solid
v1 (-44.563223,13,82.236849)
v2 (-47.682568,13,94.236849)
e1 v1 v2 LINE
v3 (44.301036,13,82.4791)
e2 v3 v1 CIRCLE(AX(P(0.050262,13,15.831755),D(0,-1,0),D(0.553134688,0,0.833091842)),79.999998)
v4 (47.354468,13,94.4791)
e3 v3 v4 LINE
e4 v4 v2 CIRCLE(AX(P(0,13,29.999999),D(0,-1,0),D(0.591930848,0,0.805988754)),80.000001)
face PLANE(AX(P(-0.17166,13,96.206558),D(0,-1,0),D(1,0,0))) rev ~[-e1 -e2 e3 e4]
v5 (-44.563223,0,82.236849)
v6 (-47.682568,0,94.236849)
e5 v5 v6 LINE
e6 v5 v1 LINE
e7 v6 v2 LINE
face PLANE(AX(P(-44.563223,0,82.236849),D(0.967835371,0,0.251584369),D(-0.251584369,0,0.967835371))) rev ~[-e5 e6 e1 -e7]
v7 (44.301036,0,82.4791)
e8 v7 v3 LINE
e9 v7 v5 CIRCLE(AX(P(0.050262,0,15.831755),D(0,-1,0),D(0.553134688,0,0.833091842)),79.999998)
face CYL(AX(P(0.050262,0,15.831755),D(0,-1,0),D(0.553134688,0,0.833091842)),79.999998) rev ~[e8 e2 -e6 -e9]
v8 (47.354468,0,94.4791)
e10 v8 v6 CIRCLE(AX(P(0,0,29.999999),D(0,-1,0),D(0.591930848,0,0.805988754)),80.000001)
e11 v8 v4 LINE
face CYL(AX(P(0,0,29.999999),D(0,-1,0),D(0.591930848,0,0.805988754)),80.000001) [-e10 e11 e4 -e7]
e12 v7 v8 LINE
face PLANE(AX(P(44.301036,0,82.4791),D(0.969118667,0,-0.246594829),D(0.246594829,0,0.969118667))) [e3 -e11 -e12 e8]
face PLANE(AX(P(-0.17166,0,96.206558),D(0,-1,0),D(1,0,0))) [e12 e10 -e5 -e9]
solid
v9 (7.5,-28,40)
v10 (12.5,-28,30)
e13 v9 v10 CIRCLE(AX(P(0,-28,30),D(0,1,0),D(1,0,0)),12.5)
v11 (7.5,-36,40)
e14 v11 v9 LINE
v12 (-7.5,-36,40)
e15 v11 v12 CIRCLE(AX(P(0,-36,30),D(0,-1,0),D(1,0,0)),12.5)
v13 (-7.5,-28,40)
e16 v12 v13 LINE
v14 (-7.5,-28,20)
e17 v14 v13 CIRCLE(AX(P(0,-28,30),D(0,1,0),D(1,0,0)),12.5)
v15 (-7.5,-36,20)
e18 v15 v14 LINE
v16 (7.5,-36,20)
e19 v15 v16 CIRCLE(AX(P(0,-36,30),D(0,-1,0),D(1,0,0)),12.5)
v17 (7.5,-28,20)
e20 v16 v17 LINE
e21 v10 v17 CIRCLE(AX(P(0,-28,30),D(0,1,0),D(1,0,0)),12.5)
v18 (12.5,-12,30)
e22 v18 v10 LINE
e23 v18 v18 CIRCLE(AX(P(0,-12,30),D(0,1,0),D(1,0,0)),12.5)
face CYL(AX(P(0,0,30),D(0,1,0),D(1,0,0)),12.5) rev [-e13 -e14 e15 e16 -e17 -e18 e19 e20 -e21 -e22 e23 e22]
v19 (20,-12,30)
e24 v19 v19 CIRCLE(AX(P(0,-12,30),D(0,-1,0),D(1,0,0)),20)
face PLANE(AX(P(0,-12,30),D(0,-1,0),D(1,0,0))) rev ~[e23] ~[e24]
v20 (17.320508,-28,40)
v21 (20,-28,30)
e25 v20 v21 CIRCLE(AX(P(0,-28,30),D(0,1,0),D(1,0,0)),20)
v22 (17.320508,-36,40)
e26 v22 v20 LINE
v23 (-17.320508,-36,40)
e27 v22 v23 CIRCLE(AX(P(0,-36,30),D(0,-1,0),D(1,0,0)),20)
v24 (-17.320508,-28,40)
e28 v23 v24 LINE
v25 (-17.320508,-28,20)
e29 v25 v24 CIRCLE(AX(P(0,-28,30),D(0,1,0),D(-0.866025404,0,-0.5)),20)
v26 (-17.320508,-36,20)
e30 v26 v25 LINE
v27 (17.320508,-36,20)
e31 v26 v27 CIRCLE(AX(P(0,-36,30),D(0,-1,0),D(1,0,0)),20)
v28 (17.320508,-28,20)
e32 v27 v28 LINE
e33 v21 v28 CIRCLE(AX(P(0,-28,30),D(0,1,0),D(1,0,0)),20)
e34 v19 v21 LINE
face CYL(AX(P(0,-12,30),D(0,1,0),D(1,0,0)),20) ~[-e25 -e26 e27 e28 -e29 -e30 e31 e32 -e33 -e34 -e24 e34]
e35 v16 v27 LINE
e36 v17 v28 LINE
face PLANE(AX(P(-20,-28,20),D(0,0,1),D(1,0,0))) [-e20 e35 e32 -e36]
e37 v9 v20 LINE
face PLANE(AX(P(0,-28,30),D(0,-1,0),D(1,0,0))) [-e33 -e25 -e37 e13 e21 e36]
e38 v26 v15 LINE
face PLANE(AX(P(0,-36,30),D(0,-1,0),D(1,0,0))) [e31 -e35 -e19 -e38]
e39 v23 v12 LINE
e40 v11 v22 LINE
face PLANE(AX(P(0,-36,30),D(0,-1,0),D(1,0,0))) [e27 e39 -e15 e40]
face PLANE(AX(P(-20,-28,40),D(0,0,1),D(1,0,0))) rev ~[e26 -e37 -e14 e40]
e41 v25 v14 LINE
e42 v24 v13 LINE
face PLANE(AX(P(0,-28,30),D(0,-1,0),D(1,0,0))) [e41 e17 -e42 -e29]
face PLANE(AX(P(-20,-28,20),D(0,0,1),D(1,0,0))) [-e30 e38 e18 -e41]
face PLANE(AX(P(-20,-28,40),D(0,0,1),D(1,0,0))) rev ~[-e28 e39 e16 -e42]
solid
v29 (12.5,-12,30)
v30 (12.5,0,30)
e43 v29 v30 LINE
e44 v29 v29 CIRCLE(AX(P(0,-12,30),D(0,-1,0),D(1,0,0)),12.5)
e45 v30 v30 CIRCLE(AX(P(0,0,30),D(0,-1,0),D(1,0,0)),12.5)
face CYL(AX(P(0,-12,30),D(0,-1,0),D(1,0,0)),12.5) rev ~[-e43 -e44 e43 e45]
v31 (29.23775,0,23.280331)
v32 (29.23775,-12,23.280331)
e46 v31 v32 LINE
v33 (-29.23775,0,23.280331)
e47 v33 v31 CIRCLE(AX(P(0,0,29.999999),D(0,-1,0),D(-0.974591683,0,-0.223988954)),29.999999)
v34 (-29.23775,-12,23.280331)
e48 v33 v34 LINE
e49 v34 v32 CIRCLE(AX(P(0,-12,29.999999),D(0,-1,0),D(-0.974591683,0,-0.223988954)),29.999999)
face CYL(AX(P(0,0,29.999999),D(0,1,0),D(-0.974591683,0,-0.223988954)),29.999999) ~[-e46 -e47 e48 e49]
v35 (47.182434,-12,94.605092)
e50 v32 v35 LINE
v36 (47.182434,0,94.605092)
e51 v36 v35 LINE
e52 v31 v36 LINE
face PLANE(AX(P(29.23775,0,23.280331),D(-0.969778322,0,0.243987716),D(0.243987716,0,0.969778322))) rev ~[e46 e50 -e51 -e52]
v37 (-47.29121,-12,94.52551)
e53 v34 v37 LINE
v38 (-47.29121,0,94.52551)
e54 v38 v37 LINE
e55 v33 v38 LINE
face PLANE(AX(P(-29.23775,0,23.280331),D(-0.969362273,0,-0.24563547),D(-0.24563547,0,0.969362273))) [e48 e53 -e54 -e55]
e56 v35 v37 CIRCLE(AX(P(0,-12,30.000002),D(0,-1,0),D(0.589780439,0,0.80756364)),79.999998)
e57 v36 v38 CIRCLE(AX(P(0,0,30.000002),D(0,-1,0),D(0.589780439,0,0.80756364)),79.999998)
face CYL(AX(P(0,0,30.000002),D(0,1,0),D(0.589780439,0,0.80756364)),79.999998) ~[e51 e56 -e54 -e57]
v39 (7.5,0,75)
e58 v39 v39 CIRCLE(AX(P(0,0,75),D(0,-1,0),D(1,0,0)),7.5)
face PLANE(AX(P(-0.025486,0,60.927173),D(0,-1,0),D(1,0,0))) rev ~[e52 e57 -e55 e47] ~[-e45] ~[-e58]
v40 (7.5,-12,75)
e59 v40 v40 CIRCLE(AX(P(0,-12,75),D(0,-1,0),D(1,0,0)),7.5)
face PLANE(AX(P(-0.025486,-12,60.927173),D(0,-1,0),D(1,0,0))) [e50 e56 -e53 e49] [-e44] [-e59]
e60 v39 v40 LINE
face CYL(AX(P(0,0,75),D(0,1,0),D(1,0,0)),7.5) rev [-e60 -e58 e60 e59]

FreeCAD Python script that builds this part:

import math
import FreeCAD as App
import Part
import Sketcher

V = App.Vector


def add_polygon(sketch, points):
    """Adds a closed chain of lines whose ends are joined by coincident constraints."""
    first, n = sketch.GeometryCount, len(points)
    for a, b in zip(points, points[1:] + points[:1]):
        sketch.addGeometry(Part.LineSegment(App.Vector(*a, 0), App.Vector(*b, 0)), False)
    for i in range(n):
        sketch.addConstraint(Sketcher.Constraint("Coincident", first + i, 2, first + (i + 1) % n, 1))

doc = App.newDocument("Part")
body = doc.addObject("PartDesign::Body", "Body")

sketch1 = body.newObject("Sketcher::SketchObject", "Sketch")
sketch1.AttachmentSupport = (doc.getObject("XZ_Plane"), [""])
sketch1.MapMode = "FlatFace"
sketch1.addGeometry([
    Part.ArcOfCircle(Part.Circle(V(0, 30, 0), V(0, 0, 1), 30), math.radians(-167), math.radians(-13)),
    Part.LineSegment(V(29, 23, 0), V(47, 95, 0)),
    Part.ArcOfCircle(Part.Circle(V(0, 30, 0), V(0, 0, 1), 80), math.radians(54), math.radians(126)),
    Part.LineSegment(V(-47, 95, 0), V(-29, 23, 0)),
    Part.Circle(V(0, 75, 0), V(0, 0, 1), 8),
], False)
sketch1.addConstraint([
    Sketcher.Constraint("Coincident", 0, 2, 1, 1),
    Sketcher.Constraint("Coincident", 1, 2, 2, 1),
    Sketcher.Constraint("Coincident", 2, 2, 3, 1),
    Sketcher.Constraint("Coincident", 3, 2, 0, 1),
    Sketcher.Constraint("Coincident", 2, 3, 0, 3),
    Sketcher.Constraint("Symmetric", 0, 2, 3, 2, -2),
    Sketcher.Constraint("PointOnObject", 4, 3, -2),
    Sketcher.Constraint("Diameter", 4, 15.0),
    Sketcher.Constraint("Radius", 0, 29.999999),
    Sketcher.Constraint("DistanceY", -1, 1, 0, 3, 29.999999),
    Sketcher.Constraint("DistanceY", -1, 1, 4, 3, 75.0),
    Sketcher.Constraint("Radius", 2, 79.999998),
    Sketcher.Constraint("DistanceX", 3, 2, 0, 2, 58.4755),
    Sketcher.Constraint("Distance", 1, 73.54749),
    Sketcher.Constraint("Distance", 3, 73.496959),
])
pad1 = body.newObject("PartDesign::Pad", "Pad")
pad1.Profile = sketch1
pad1.Length = 12

sketch2 = body.newObject("Sketcher::SketchObject", "Sketch001")
sketch2.AttachmentSupport = (doc.getObject("XZ_Plane"), [""])
sketch2.MapMode = "FlatFace"
sketch2.AttachmentOffset = App.Placement(V(0, 0, 12), App.Rotation())
sketch2.addGeometry(Part.Circle(V(0, 30, 0), V(0, 0, 1), 12), False)
sketch2.addConstraint([
    Sketcher.Constraint("PointOnObject", 0, 3, -2),
    Sketcher.Constraint("Diameter", 0, 25.0),
    Sketcher.Constraint("DistanceY", -1, 1, 0, 3, 30.0),
])
pocket1 = body.newObject("PartDesign::Pocket", "Pocket")
pocket1.Profile = sketch2
pocket1.Type = "ThroughAll"
body2 = doc.addObject("PartDesign::Body", "Body001")

sketch3 = body2.newObject("Sketcher::SketchObject", "Sketch002")
sketch3.AttachmentSupport = (doc.getObject("XZ_Plane001"), [""])
sketch3.MapMode = "FlatFace"
sketch3.addGeometry([
    Part.ArcOfCircle(Part.Circle(V(0, 30, 0), V(0, 0, 1), 80), math.radians(54), math.radians(127)),
    Part.LineSegment(V(-48, 94, 0), V(-45, 82, 0)),
    Part.ArcOfCircle(Part.Circle(V(0, 16, 0), V(0, 0, 1), 80), math.radians(56), math.radians(124)),
    Part.LineSegment(V(44, 82, 0), V(47, 94, 0)),
], False)
sketch3.addConstraint([
    Sketcher.Constraint("Coincident", 0, 2, 1, 1),
    Sketcher.Constraint("Coincident", 1, 2, 2, 2),
    Sketcher.Constraint("Coincident", 2, 1, 3, 1),
    Sketcher.Constraint("Coincident", 3, 2, 0, 1),
    Sketcher.Constraint("PointOnObject", 0, 3, -2),
    Sketcher.Constraint("Radius", 0, 80.000001),
    Sketcher.Constraint("DistanceY", -1, 1, 0, 3, 29.999999),
    Sketcher.Constraint("DistanceY", 1, 2, 0, 2, 12.0),
    Sketcher.Constraint("DistanceY", 2, 1, 3, 2, 12.0),
    Sketcher.Constraint("Radius", 2, 79.999998),
    Sketcher.Constraint("DistanceY", -1, 1, 2, 1, 82.4791),
    Sketcher.Constraint("DistanceX", 0, 2, -1, 1, 47.682568),
    Sketcher.Constraint("DistanceX", 0, 2, 2, 3, 47.73283),
    Sketcher.Constraint("DistanceX", 1, 2, 2, 1, 88.864259),
])
pad2 = body2.newObject("PartDesign::Pad", "Pad001")
pad2.Profile = sketch3
pad2.Length = 13
pad2.Reversed = True
body3 = doc.addObject("PartDesign::Body", "Body002")

sketch4 = body3.newObject("Sketcher::SketchObject", "Sketch003")
sketch4.AttachmentSupport = (doc.getObject("XZ_Plane002"), [""])
sketch4.MapMode = "FlatFace"
add_polygon(sketch4, [(-20, 40), (-20, 20), (20, 20), (20, 40)])
sketch4.addConstraint([
    Sketcher.Constraint("Vertical", 0),
    Sketcher.Constraint("Horizontal", 1),
    Sketcher.Constraint("Vertical", 2),
    Sketcher.Constraint("Horizontal", 3),
    Sketcher.Constraint("DistanceX", 1, 1, 1, 2, 40.0),
    Sketcher.Constraint("DistanceY", 0, 2, 0, 1, 20.0),
    Sketcher.Constraint("DistanceX", 0, 2, -1, 1, 20.0),
    Sketcher.Constraint("DistanceY", -1, 1, 0, 2, 20.0),
])
pad3 = body3.newObject("PartDesign::Pad", "Pad002")
pad3.Profile = sketch4
pad3.Length = 8
body4 = doc.addObject("PartDesign::Body", "Body003")
doc.recompute()

body3.Placement = App.Placement(V(0, -28, 0), App.Rotation(V(0, 0, 1), 0))
boolean = body4.newObject("PartDesign::Boolean", "Boolean")
boolean.Type = "Fuse"
boolean.addObjects([body3])
body5 = doc.addObject("PartDesign::Body", "Body004")

sketch5 = body5.newObject("Sketcher::SketchObject", "Sketch004")
sketch5.AttachmentSupport = (doc.getObject("XZ_Plane004"), [""])
sketch5.MapMode = "FlatFace"
sketch5.addGeometry(Part.Circle(V(0, 30, 0), V(0, 0, 1), 12), False)
sketch5.addConstraint([
    Sketcher.Constraint("PointOnObject", 0, 3, -2),
    Sketcher.Constraint("Diameter", 0, 25.0),
    Sketcher.Constraint("DistanceY", -1, 1, 0, 3, 30.0),
])
pad4 = body5.newObject("PartDesign::Pad", "Pad003")
pad4.Profile = sketch5
pad4.Length = 36
body6 = doc.addObject("PartDesign::Body", "Body005")

sketch6 = body6.newObject("Sketcher::SketchObject", "Sketch005")
sketch6.AttachmentSupport = (doc.getObject("XZ_Plane005"), [""])
sketch6.MapMode = "FlatFace"
sketch6.addGeometry(Part.Circle(V(0, 30, 0), V(0, 0, 1), 20), False)
sketch6.addConstraint([
    Sketcher.Constraint("PointOnObject", 0, 3, -2),
    Sketcher.Constraint("Diameter", 0, 40.0),
    Sketcher.Constraint("DistanceY", -1, 1, 0, 3, 30.0),
])
pad5 = body6.newObject("PartDesign::Pad", "Pad004")
pad5.Profile = sketch6
pad5.Length = 24
body7 = doc.addObject("PartDesign::Body", "Body006")
doc.recompute()

body6.Placement = App.Placement(V(0, -12, 0), App.Rotation(V(0, 0, 1), 0))
boolean2 = body7.newObject("PartDesign::Boolean", "Boolean001")
boolean2.Type = "Fuse"
boolean2.addObjects([body6])
doc.recompute()

boolean3 = body7.newObject("PartDesign::Boolean", "Boolean002")
boolean3.Type = "Cut"
boolean3.addObjects([body5])
doc.recompute()

boolean4 = body7.newObject("PartDesign::Boolean", "Boolean003")
boolean4.Type = "Cut"
boolean4.addObjects([body4])

doc.recompute()
